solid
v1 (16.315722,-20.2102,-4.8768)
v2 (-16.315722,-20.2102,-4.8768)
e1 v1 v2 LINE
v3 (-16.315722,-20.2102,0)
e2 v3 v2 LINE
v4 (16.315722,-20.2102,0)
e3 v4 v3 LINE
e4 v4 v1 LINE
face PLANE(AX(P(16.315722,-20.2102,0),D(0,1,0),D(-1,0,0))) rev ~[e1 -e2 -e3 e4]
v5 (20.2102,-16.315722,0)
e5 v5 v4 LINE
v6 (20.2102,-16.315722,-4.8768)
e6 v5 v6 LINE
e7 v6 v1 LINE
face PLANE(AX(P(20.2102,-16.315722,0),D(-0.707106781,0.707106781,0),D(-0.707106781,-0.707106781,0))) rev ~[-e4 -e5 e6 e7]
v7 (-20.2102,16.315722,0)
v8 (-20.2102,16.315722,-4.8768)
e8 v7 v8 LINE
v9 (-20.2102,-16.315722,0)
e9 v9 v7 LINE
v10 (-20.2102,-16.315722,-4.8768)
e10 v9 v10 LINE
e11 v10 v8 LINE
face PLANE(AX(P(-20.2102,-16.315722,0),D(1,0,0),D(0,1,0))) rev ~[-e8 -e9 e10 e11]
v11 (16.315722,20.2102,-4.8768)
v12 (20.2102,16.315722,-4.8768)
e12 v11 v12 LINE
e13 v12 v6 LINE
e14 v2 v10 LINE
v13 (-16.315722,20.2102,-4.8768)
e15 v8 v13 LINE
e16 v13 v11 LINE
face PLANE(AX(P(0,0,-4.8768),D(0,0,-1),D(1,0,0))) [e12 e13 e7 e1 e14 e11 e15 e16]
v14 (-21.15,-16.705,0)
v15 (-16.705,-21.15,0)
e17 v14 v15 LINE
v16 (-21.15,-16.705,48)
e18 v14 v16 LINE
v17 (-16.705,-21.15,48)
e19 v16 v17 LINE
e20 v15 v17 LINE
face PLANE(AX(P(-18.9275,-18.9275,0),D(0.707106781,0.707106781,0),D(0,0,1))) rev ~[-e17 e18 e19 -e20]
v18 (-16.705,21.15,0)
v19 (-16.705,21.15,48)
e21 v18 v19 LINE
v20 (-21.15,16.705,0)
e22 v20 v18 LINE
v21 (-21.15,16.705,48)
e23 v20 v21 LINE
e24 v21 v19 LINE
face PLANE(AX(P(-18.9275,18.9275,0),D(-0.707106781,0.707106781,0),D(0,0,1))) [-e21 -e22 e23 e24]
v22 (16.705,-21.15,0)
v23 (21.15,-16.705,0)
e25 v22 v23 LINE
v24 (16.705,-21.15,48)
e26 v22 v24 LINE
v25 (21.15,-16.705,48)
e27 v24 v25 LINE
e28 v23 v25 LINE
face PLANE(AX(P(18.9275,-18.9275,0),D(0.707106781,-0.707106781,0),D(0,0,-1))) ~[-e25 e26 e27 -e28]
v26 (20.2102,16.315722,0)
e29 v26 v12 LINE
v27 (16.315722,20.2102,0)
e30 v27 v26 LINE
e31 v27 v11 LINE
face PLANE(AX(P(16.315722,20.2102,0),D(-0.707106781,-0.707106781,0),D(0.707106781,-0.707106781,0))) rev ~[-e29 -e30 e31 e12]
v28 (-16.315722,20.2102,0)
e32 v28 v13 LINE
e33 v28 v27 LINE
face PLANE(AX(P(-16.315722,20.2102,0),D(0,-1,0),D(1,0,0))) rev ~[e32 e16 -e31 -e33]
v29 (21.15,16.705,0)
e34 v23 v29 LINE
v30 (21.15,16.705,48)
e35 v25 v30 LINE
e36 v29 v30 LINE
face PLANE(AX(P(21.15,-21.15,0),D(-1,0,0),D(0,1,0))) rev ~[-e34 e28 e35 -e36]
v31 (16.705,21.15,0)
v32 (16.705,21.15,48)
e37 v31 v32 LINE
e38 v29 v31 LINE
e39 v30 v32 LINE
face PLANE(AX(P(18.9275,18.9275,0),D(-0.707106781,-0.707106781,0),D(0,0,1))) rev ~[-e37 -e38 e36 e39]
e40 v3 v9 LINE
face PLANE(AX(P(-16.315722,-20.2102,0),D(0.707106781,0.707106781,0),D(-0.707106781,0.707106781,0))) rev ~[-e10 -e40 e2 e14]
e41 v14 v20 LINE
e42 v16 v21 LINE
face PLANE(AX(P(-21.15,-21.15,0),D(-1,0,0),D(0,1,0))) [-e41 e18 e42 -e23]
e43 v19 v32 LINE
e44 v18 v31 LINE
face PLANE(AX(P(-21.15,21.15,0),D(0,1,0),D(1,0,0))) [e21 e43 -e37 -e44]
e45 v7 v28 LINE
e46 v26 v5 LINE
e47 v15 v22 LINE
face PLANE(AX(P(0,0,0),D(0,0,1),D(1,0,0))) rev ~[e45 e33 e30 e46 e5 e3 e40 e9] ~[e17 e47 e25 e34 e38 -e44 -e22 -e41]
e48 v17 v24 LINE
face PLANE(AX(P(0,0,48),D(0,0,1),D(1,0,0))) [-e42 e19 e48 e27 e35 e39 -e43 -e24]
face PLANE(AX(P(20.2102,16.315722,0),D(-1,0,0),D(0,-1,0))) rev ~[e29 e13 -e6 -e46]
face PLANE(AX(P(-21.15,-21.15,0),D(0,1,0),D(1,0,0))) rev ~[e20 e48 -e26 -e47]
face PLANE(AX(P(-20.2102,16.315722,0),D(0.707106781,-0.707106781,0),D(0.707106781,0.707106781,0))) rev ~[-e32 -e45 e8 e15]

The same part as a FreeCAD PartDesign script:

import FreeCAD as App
import Part
import Sketcher


def edges_at(feature, points):
    """Names of the edges that pass closest to the given points."""
    edges = feature.Shape.Edges
    near = lambda p: min(range(len(edges)), key=lambda i: edges[i].distToShape(Part.Vertex(*p))[0])
    return sorted({f"Edge{near(p) + 1}" for p in points})


def add_polygon(sketch, points):
    """Adds a closed chain of lines whose ends are joined by coincident constraints."""
    first, n = sketch.GeometryCount, len(points)
    for a, b in zip(points, points[1:] + points[:1]):
        sketch.addGeometry(Part.LineSegment(App.Vector(*a, 0), App.Vector(*b, 0)), False)
    for i in range(n):
        sketch.addConstraint(Sketcher.Constraint("Coincident", first + i, 2, first + (i + 1) % n, 1))

doc = App.newDocument("Part")
body = doc.addObject("PartDesign::Body", "Body")

sketch1 = body.newObject("Sketcher::SketchObject", "Sketch")
sketch1.AttachmentSupport = (doc.getObject("XY_Plane"), [""])
sketch1.MapMode = "FlatFace"
add_polygon(sketch1, [(-21, 21), (-21, -21), (21, -21), (21, 21)])
sketch1.addConstraint(Sketcher.Constraint("Vertical", 0))
sketch1.addConstraint(Sketcher.Constraint("Horizontal", 1))
sketch1.addConstraint(Sketcher.Constraint("Vertical", 2))
sketch1.addConstraint(Sketcher.Constraint("Horizontal", 3))
sketch1.addConstraint(Sketcher.Constraint("Symmetric", 0, 2, 2, 2, -1, 1))
sketch1.addConstraint(Sketcher.Constraint("Equal", 3, 0))
sketch1.addConstraint(Sketcher.Constraint("DistanceX", 1, 1, 1, 2, 42.3))
pad1 = body.newObject("PartDesign::Pad", "Pad")
pad1.Profile = sketch1
pad1.Length = 48
doc.recompute()

chamfer = body.newObject("PartDesign::Chamfer", "Chamfer")
chamfer.Base = (pad1, edges_at(pad1, [
    (21.15, 21.15, 24),
    (-21.15, 21.15, 24),
    (-21.15, -21.15, 24),
    (21.15, -21.15, 24),
]))
chamfer.Size = 4.445

sketch2 = body.newObject("Sketcher::SketchObject", "Sketch001")
sketch2.AttachmentSupport = (doc.getObject("XY_Plane"), [""])
sketch2.MapMode = "FlatFace"
add_polygon(sketch2, [(-16, 20), (16, 20), (20, 16), (20, -16), (16, -20), (-16, -20), (-20, -16), (-20, 16)])
sketch2.addConstraint(Sketcher.Constraint("Horizontal", 0))
sketch2.addConstraint(Sketcher.Constraint("Vertical", 2))
sketch2.addConstraint(Sketcher.Constraint("Horizontal", 4))
sketch2.addConstraint(Sketcher.Constraint("Vertical", 6))
sketch2.addConstraint(Sketcher.Constraint("Symmetric", 0, 2, 4, 2, -1, 1))
sketch2.addConstraint(Sketcher.Constraint("Symmetric", 1, 2, 5, 2, -1, 1))
sketch2.addConstraint(Sketcher.Constraint("Perpendicular", 1, 3))
sketch2.addConstraint(Sketcher.Constraint("Perpendicular", 5, 7))
sketch2.addConstraint(Sketcher.Constraint("Horizontal", 2, 2, 5, 2))
sketch2.addConstraint(Sketcher.Constraint("Horizontal", 1, 2, 6, 2))
sketch2.addConstraint(Sketcher.Constraint("Vertical", 0, 2, 3, 2))
sketch2.addConstraint(Sketcher.Constraint("Equal", 4, 2))
sketch2.addConstraint(Sketcher.Constraint("DistanceY", -1, 1, 0, 2, 20.2102))
sketch2.addConstraint(Sketcher.Constraint("DistanceX", 0, 1, 0, 2, 32.631444))
pad2 = body.newObject("PartDesign::Pad", "Pad001")
pad2.Profile = sketch2
pad2.Length = 4.8768
pad2.Reversed = True

doc.recompute()
